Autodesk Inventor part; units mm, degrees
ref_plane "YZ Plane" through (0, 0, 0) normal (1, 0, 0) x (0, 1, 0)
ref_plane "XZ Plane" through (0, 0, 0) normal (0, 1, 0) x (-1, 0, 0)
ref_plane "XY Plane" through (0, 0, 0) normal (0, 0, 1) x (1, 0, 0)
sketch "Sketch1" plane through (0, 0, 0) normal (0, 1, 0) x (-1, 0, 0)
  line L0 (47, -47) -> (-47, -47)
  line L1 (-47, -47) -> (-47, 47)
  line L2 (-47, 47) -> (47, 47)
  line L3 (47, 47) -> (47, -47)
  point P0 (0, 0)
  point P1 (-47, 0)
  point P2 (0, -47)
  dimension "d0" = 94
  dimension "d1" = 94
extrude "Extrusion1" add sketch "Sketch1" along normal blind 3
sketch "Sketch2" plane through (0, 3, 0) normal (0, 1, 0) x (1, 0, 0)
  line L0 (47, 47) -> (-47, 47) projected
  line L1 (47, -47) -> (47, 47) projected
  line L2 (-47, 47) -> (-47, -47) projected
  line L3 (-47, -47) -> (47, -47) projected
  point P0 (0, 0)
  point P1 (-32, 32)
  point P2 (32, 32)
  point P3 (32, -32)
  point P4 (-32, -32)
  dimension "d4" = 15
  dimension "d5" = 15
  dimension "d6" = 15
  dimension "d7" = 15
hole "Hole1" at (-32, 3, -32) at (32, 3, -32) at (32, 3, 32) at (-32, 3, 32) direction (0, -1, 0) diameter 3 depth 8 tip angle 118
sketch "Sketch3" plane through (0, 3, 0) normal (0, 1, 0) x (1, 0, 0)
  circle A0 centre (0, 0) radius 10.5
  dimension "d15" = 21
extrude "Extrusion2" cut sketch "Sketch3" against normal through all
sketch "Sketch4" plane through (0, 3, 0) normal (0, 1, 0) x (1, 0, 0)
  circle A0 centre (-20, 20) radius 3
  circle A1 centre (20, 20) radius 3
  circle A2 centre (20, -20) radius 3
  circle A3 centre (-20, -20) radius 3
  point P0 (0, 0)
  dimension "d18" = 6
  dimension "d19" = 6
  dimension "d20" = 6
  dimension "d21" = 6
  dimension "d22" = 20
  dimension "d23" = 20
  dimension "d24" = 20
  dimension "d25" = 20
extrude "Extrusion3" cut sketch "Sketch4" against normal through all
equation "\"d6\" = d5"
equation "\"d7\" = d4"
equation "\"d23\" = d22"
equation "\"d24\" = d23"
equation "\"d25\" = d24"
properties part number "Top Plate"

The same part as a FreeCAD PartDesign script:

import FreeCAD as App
import Part
import Sketcher
from FreeCAD import Vector
Q = App.Units.Quantity

doc = App.newDocument("Part")
body = doc.addObject("PartDesign::Body", "Body")

# Sketch on XZ plane
sketch1 = body.newObject("Sketcher::SketchObject", "Sketch")
sketch1.AttachmentSupport = (doc.getObject("XZ_Plane"), [""])
sketch1.MapMode = "FlatFace"
sketch1.addGeometry([
    Part.LineSegment(Vector(47, -47, 0), Vector(-47, -47, 0)),
    Part.LineSegment(Vector(-47, -47, 0), Vector(-47, 47, 0)),
    Part.LineSegment(Vector(-47, 47, 0), Vector(47, 47, 0)),
    Part.LineSegment(Vector(47, 47, 0), Vector(47, -47, 0)),
], False)
sketch1.addConstraint([
    Sketcher.Constraint("Coincident", 0, 2, 1, 1),
    Sketcher.Constraint("Coincident", 1, 2, 2, 1),
    Sketcher.Constraint("Coincident", 2, 2, 3, 1),
    Sketcher.Constraint("Coincident", 3, 2, 0, 1),
    Sketcher.Constraint("Horizontal", 0),
    Sketcher.Constraint("Vertical", 1),
    Sketcher.Constraint("Horizontal", 2),
    Sketcher.Constraint("Vertical", 3),
    Sketcher.Constraint("Symmetric", 0, 2, 2, 2, -1, 1),
    Sketcher.Constraint("Equal", 2, 1),
    Sketcher.Constraint("DistanceX", 0, 2, 0, 1, Q("94 mm")),
])
pad1 = body.newObject("PartDesign::Pad", "Pad")
pad1.Profile = sketch1
pad1.Length = 3
pad1.Reversed = True

# Sketch on XZ plane
sketch2 = body.newObject("Sketcher::SketchObject", "Sketch001")
sketch2.AttachmentSupport = (doc.getObject("XZ_Plane"), [""])
sketch2.MapMode = "FlatFace"
sketch2.AttachmentOffset = App.Placement(Vector(0, 0, -3), App.Rotation())
sketch2.addGeometry([
    Part.Circle(Vector(-32, -32, 0), Vector(0, 0, 1), 1.5),
    Part.Circle(Vector(32, -32, 0), Vector(0, 0, 1), 1.5),
    Part.Circle(Vector(32, 32, 0), Vector(0, 0, 1), 1.5),
    Part.Circle(Vector(-32, 32, 0), Vector(0, 0, 1), 1.5),
], False)
sketch2.addConstraint([
    Sketcher.Constraint("Equal", 0, 1),
    Sketcher.Constraint("Equal", 1, 2),
    Sketcher.Constraint("Equal", 2, 3),
    Sketcher.Constraint("Symmetric", 0, 3, 2, 3, -1, 1),
    Sketcher.Constraint("Symmetric", 1, 3, 3, 3, -1, 1),
    Sketcher.Constraint("Symmetric", 0, 3, 1, 3, -2),
    Sketcher.Constraint("Diameter", 0, Q("3 mm")),
    Sketcher.Constraint("DistanceX", 0, 3, -1, 1, Q("32 mm")),
    Sketcher.Constraint("DistanceY", 0, 3, -1, 1, Q("32 mm")),
])
doc.recompute()
hole = body.newObject("PartDesign::Hole", "Hole")
hole.Profile = sketch2
hole.ThreadType = "None"
hole.Diameter = 3
hole.DepthType = "Dimension"
hole.Depth = 8
hole.DrillPoint = "Angled"
hole.DrillPointAngle = 118
hole.Reversed = True

# Sketch on XZ plane
sketch3 = body.newObject("Sketcher::SketchObject", "Sketch002")
sketch3.AttachmentSupport = (doc.getObject("XZ_Plane"), [""])
sketch3.MapMode = "FlatFace"
sketch3.AttachmentOffset = App.Placement(Vector(0, 0, -3), App.Rotation())
sketch3.addGeometry(Part.Circle(Vector(0, 0, 0), Vector(0, 0, 1), 10), False)
sketch3.addConstraint([
    Sketcher.Constraint("Coincident", 0, 3, -1, 1),
    Sketcher.Constraint("Diameter", 0, Q("21 mm")),
])
pocket1 = body.newObject("PartDesign::Pocket", "Pocket")
pocket1.Profile = sketch3
pocket1.Type = "ThroughAll"
pocket1.Reversed = True

# Sketch on XZ plane
sketch4 = body.newObject("Sketcher::SketchObject", "Sketch003")
sketch4.AttachmentSupport = (doc.getObject("XZ_Plane"), [""])
sketch4.MapMode = "FlatFace"
sketch4.AttachmentOffset = App.Placement(Vector(0, 0, -3), App.Rotation())
sketch4.addGeometry([
    Part.Circle(Vector(-20, -20, 0), Vector(0, 0, 1), 3),
    Part.Circle(Vector(20, -20, 0), Vector(0, 0, 1), 3),
    Part.Circle(Vector(20, 20, 0), Vector(0, 0, 1), 3),
    Part.Circle(Vector(-20, 20, 0), Vector(0, 0, 1), 3),
], False)
sketch4.addConstraint([
    Sketcher.Constraint("Equal", 0, 1),
    Sketcher.Constraint("Equal", 1, 2),
    Sketcher.Constraint("Equal", 2, 3),
    Sketcher.Constraint("Symmetric", 0, 3, 2, 3, -1, 1),
    Sketcher.Constraint("Symmetric", 1, 3, 3, 3, -1, 1),
    Sketcher.Constraint("Symmetric", 0, 3, 1, 3, -2),
    Sketcher.Constraint("Diameter", 0, Q("6 mm")),
    Sketcher.Constraint("DistanceX", 0, 3, -1, 1, Q("20 mm")),
    Sketcher.Constraint("DistanceY", 0, 3, -1, 1, Q("20 mm")),
])
pocket2 = body.newObject("PartDesign::Pocket", "Pocket001")
pocket2.Profile = sketch4
pocket2.Type = "ThroughAll"
pocket2.Reversed = True

doc.recompute()
